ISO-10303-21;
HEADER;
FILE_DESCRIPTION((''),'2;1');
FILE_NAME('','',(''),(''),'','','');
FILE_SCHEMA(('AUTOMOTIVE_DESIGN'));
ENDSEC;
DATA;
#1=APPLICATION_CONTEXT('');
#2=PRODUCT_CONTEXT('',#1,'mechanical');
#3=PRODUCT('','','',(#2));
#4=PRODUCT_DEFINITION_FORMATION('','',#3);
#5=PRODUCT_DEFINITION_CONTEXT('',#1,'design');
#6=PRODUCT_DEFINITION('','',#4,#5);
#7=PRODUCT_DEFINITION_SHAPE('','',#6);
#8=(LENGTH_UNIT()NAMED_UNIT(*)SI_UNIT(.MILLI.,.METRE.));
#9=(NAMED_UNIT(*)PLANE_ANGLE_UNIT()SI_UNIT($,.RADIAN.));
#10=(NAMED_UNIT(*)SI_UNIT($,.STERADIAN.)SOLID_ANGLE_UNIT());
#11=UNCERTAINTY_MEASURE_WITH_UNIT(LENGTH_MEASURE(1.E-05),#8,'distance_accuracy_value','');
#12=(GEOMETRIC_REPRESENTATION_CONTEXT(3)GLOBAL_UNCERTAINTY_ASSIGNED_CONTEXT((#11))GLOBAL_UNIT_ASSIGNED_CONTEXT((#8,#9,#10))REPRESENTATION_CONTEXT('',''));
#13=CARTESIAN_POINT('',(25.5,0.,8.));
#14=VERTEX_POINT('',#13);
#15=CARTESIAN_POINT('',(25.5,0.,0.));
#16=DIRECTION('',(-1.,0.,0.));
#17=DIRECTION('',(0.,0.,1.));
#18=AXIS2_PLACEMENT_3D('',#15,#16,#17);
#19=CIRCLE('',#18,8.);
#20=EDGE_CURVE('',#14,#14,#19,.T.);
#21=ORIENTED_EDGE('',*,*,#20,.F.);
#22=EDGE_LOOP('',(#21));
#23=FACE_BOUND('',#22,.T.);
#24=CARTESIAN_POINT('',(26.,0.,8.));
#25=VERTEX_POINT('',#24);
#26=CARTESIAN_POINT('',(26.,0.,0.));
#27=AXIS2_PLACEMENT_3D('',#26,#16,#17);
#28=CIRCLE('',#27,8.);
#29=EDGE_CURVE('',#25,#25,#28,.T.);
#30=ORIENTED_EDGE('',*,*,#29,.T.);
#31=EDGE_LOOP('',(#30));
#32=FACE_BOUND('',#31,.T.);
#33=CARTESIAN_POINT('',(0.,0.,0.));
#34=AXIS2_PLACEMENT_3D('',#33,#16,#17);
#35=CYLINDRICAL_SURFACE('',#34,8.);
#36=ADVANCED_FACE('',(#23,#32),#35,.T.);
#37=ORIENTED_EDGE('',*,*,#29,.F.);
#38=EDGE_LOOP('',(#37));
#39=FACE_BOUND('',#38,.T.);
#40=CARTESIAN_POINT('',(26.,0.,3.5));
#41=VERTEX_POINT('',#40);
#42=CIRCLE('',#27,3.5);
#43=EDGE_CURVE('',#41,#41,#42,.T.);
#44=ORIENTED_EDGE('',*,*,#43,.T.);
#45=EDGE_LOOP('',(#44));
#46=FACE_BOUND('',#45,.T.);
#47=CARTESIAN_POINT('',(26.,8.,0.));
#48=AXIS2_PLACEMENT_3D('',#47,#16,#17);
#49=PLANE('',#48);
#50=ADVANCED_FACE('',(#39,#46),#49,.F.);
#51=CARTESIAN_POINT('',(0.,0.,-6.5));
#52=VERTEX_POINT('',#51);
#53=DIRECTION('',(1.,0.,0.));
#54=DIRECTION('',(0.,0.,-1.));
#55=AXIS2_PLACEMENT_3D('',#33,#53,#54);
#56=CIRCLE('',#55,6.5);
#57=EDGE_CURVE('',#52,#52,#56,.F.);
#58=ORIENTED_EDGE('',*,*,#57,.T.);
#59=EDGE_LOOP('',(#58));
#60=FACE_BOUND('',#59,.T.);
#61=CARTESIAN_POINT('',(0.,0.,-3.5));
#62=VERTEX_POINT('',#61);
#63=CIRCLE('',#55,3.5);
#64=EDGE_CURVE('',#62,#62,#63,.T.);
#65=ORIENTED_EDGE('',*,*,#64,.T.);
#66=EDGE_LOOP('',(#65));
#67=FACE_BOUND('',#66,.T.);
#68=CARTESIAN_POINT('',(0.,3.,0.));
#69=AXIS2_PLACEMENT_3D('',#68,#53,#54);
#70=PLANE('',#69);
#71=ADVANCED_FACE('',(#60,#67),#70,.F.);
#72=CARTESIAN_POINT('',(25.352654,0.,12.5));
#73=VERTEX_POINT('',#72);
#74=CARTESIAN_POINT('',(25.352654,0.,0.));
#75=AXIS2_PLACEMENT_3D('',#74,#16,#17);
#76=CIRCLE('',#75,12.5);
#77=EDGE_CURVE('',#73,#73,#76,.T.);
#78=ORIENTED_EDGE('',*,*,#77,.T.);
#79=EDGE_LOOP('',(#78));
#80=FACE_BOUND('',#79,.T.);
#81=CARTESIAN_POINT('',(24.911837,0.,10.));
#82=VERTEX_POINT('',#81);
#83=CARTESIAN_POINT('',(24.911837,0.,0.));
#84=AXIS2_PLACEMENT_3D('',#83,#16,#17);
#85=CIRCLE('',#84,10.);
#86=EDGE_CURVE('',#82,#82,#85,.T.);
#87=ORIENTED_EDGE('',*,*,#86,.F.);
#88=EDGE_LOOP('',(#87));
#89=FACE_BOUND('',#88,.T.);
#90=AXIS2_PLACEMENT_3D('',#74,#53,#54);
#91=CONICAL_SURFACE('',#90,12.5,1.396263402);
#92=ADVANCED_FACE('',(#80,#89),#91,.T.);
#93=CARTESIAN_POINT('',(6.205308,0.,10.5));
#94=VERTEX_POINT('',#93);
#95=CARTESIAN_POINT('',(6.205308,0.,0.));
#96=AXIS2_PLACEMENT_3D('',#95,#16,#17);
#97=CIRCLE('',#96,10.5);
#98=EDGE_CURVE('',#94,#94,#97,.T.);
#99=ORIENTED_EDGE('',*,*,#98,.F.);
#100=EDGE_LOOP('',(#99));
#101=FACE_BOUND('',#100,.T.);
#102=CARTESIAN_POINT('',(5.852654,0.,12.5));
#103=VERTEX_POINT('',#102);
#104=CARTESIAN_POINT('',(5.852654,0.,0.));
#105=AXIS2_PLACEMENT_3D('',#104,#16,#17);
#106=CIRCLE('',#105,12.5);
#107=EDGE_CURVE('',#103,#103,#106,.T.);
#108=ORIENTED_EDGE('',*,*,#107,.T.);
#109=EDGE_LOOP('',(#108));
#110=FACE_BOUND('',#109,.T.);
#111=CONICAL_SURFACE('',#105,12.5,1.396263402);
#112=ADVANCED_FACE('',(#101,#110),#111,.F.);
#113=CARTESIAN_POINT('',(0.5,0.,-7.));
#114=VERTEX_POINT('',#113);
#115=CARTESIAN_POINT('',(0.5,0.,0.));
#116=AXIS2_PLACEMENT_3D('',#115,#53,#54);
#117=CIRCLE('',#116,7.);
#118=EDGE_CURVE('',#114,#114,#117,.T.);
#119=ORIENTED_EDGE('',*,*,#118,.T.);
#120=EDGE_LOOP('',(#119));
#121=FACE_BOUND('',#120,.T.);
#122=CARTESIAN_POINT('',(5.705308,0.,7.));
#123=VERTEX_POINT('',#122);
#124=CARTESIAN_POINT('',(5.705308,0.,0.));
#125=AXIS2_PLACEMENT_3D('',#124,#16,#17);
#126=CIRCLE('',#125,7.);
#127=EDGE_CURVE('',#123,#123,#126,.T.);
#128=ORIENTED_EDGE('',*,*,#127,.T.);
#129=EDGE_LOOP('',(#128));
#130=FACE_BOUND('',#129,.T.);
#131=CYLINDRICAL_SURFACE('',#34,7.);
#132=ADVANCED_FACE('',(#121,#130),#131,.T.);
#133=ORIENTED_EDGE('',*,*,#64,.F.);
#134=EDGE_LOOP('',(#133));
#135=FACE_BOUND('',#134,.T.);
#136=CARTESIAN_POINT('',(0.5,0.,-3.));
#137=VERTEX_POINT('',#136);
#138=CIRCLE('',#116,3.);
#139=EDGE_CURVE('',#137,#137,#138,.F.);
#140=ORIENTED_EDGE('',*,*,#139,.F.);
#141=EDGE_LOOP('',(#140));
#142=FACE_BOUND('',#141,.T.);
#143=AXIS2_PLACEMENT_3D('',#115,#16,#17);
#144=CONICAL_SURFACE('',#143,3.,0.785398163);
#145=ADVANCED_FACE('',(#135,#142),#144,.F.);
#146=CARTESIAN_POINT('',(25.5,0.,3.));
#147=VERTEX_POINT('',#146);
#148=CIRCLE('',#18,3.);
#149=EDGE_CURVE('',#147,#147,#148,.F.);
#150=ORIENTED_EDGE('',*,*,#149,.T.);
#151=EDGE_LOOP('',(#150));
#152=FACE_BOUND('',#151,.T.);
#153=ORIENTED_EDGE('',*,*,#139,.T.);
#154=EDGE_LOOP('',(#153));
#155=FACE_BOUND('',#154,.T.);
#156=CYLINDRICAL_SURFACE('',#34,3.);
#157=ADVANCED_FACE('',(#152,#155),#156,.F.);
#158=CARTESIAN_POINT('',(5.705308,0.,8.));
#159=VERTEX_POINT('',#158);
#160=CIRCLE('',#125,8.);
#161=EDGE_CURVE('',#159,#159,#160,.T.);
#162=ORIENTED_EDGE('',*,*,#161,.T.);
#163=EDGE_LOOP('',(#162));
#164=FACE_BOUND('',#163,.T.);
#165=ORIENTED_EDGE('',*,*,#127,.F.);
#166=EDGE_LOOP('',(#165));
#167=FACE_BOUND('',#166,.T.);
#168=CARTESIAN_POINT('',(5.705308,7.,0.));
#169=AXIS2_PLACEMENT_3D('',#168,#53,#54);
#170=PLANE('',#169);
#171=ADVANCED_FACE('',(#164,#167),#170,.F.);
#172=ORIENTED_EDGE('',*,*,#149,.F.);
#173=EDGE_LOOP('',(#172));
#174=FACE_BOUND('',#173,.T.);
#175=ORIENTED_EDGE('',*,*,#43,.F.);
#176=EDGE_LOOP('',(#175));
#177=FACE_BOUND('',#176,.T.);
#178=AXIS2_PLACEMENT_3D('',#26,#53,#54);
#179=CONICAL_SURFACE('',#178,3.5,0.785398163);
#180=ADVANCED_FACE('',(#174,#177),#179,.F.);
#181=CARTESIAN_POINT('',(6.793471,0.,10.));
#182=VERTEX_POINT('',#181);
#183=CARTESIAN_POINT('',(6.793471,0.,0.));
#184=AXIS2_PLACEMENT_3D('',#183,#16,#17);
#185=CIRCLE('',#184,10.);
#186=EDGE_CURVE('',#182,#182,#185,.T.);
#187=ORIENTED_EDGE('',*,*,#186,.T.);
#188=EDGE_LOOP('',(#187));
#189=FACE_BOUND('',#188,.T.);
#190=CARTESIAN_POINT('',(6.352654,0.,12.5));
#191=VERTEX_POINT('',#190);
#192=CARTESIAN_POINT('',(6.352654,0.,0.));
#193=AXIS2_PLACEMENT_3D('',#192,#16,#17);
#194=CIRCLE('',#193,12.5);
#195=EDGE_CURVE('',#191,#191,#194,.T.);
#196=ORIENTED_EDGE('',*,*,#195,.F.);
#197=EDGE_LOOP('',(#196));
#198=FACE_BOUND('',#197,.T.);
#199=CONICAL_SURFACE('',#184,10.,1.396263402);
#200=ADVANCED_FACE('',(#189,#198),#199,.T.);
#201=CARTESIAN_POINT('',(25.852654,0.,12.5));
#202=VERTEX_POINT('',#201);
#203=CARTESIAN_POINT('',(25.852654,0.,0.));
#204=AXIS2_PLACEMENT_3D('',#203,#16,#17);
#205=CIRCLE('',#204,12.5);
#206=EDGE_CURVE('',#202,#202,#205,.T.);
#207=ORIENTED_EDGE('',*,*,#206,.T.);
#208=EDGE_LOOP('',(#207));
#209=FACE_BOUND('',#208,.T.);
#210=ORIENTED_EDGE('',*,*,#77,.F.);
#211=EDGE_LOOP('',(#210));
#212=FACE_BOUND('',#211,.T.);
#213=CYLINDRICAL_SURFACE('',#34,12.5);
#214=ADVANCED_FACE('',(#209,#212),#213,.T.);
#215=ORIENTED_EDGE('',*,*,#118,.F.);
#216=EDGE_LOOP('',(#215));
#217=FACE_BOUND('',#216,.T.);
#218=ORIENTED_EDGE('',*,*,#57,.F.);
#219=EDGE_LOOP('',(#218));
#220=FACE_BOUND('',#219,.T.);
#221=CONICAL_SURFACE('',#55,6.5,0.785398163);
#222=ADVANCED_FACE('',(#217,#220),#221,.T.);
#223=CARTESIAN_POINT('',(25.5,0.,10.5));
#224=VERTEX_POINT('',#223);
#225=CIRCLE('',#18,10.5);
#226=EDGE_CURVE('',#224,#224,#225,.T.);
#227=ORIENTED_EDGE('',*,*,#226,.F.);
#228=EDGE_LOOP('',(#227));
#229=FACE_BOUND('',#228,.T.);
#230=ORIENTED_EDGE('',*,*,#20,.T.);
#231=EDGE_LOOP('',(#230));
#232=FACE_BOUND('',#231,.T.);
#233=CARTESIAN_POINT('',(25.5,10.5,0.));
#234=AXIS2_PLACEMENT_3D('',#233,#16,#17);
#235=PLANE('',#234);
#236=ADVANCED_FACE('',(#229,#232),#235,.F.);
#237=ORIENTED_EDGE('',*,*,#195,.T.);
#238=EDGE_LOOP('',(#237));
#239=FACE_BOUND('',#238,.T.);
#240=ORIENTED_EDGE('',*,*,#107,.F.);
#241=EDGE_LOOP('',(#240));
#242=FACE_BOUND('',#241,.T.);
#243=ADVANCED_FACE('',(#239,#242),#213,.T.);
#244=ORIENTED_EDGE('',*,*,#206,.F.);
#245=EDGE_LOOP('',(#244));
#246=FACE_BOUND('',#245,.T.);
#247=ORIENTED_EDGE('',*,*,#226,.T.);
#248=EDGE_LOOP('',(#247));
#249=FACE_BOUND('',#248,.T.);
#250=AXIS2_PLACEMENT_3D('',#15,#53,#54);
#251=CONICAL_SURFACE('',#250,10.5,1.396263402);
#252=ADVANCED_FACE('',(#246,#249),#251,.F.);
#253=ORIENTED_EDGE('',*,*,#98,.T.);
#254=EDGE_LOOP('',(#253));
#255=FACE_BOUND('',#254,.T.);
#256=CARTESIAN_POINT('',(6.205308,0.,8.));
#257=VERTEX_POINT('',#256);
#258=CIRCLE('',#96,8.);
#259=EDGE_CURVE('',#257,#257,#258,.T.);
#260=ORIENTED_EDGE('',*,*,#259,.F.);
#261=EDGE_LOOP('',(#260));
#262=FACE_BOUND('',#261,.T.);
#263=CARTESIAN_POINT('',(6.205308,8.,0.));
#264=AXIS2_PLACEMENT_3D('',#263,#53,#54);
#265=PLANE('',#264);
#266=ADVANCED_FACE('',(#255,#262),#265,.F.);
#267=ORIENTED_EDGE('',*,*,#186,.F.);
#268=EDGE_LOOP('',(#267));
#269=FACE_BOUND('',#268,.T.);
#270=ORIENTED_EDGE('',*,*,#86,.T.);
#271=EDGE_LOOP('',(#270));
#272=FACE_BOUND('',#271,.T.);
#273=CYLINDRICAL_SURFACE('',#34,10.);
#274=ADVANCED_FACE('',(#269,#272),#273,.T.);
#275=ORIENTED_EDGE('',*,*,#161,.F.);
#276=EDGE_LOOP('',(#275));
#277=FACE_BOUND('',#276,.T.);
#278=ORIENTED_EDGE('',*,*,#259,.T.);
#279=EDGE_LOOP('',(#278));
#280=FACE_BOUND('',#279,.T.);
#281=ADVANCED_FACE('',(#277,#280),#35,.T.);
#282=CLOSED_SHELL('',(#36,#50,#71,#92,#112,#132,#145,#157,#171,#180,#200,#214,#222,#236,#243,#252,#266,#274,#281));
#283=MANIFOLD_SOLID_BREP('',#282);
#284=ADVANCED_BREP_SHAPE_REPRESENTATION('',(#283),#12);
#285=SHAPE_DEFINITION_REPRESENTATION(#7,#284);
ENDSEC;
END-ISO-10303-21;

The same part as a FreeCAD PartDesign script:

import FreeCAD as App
import Part
import Sketcher

V = App.Vector
Q = App.Units.Quantity


def edges_at(feature, points):
    """Names of the edges that pass closest to the given points."""
    edges = feature.Shape.Edges
    near = lambda p: min(range(len(edges)), key=lambda i: edges[i].distToShape(Part.Vertex(*p))[0])
    return sorted({f"Edge{near(p) + 1}" for p in points})


def add_polygon(sketch, points):
    """Adds a closed chain of lines whose ends are joined by coincident constraints."""
    first, n = sketch.GeometryCount, len(points)
    for a, b in zip(points, points[1:] + points[:1]):
        sketch.addGeometry(Part.LineSegment(App.Vector(*a, 0), App.Vector(*b, 0)), False)
    for i in range(n):
        sketch.addConstraint(Sketcher.Constraint("Coincident", first + i, 2, first + (i + 1) % n, 1))

doc = App.newDocument("Part")
params = doc.addObject("Spreadsheet::Sheet", "Params")
for row, (alias, value) in enumerate([
    ("sketch1_width", "26 mm"),
    ("sketch1_height", "5 mm"),
    ("sketch1_height2", "1 mm"),
    ("sketch1_width2", "0.5 mm"),
    ("sketch1_height3", "2.5 mm"),
    ("revolution_angle", "360 deg"),
    ("chamfer_size", "0.5 mm"),
], start=1):
    params.set(f"A{row}", alias)
    params.set(f"B{row}", "=" + value)
    params.setAlias(f"B{row}", alias)

body = doc.addObject("PartDesign::Body", "Body")

# Sketch on XY plane
sketch1 = body.newObject("Sketcher::SketchObject", "Sketch")
sketch1.AttachmentSupport = (doc.getObject("XY_Plane"), [""])
sketch1.MapMode = "FlatFace"
add_polygon(sketch1, [(0, 3), (26, 3), (26, 8), (25.5, 8), (25.5, 10.5), (25.9, 12.5), (25.4, 12.5), (24.9, 10), (6.8, 10), (6.4, 12.5), (5.9, 12.5), (6.2, 10.5), (6.2, 8), (5.7, 8), (5.7, 7), (0, 7)])  # lines 0-15
sketch1.addConstraint([
    Sketcher.Constraint("Horizontal", 0),
    Sketcher.Constraint("Vertical", 1),
    Sketcher.Constraint("Horizontal", 2),
    Sketcher.Constraint("Vertical", 3),
    Sketcher.Constraint("Horizontal", 5),
    Sketcher.Constraint("Horizontal", 7),
    Sketcher.Constraint("Horizontal", 9),
    Sketcher.Constraint("Vertical", 11),
    Sketcher.Constraint("Horizontal", 12),
    Sketcher.Constraint("Vertical", 13),
    Sketcher.Constraint("Horizontal", 14),
    Sketcher.Constraint("Vertical", 15),
    Sketcher.Constraint("PointOnObject", 14, 2, -2),
    Sketcher.Constraint("Parallel", 4, 6),
    Sketcher.Constraint("Parallel", 8, 10),
    Sketcher.Constraint("Horizontal", 5, 2, 8, 2),
    Sketcher.Constraint("Horizontal", 3, 2, 10, 2),
    Sketcher.Constraint("Horizontal", 2, 2, 11, 2),
    Sketcher.Constraint("Equal", 2, 5),
    Sketcher.Constraint("Equal", 5, 9),
    Sketcher.Constraint("Equal", 9, 12),
    Sketcher.Constraint("Equal", 6, 8),
    Sketcher.Constraint("DistanceX", 0, 1, 0, 2, 26.0),
    Sketcher.Constraint("DistanceY", 1, 1, 1, 2, 5.0),
    Sketcher.Constraint("DistanceY", 13, 2, 13, 1, 1.0),
    Sketcher.Constraint("Angle", 4, Q("80 deg")),
    Sketcher.Constraint("DistanceX", 2, 2, 2, 1, 0.5),
    Sketcher.Constraint("DistanceY", 3, 1, 3, 2, 2.5),
    Sketcher.Constraint("DistanceY", -1, 1, 0, 2, 3.0),
    Sketcher.Constraint("DistanceY", -1, 1, 6, 2, 10.0),
    Sketcher.Constraint("DistanceY", 3, 2, 4, 2, 2.0),
    Sketcher.Constraint("DistanceX", 8, 2, 5, 2, 19.0),
])
sketch1.setExpression("Constraints[38]", "Params.sketch1_width")
sketch1.setExpression("Constraints[39]", "Params.sketch1_height")
sketch1.setExpression("Constraints[40]", "Params.sketch1_height2")
sketch1.setExpression("Constraints[42]", "Params.sketch1_width2")
sketch1.setExpression("Constraints[43]", "Params.sketch1_height3")
revolution = body.newObject("PartDesign::Revolution", "Revolution")
revolution.Profile = sketch1
revolution.ReferenceAxis = (sketch1, ["H_Axis"])
revolution.setExpression("Angle", "Params.revolution_angle")
doc.recompute()

chamfer = body.newObject("PartDesign::Chamfer", "Chamfer")
chamfer.Base = (revolution, edges_at(revolution, [(0, 0, -3), (26, 0, -3), (0, 0, -7)]))
chamfer.setExpression("Size", "Params.chamfer_size")

doc.recompute()
